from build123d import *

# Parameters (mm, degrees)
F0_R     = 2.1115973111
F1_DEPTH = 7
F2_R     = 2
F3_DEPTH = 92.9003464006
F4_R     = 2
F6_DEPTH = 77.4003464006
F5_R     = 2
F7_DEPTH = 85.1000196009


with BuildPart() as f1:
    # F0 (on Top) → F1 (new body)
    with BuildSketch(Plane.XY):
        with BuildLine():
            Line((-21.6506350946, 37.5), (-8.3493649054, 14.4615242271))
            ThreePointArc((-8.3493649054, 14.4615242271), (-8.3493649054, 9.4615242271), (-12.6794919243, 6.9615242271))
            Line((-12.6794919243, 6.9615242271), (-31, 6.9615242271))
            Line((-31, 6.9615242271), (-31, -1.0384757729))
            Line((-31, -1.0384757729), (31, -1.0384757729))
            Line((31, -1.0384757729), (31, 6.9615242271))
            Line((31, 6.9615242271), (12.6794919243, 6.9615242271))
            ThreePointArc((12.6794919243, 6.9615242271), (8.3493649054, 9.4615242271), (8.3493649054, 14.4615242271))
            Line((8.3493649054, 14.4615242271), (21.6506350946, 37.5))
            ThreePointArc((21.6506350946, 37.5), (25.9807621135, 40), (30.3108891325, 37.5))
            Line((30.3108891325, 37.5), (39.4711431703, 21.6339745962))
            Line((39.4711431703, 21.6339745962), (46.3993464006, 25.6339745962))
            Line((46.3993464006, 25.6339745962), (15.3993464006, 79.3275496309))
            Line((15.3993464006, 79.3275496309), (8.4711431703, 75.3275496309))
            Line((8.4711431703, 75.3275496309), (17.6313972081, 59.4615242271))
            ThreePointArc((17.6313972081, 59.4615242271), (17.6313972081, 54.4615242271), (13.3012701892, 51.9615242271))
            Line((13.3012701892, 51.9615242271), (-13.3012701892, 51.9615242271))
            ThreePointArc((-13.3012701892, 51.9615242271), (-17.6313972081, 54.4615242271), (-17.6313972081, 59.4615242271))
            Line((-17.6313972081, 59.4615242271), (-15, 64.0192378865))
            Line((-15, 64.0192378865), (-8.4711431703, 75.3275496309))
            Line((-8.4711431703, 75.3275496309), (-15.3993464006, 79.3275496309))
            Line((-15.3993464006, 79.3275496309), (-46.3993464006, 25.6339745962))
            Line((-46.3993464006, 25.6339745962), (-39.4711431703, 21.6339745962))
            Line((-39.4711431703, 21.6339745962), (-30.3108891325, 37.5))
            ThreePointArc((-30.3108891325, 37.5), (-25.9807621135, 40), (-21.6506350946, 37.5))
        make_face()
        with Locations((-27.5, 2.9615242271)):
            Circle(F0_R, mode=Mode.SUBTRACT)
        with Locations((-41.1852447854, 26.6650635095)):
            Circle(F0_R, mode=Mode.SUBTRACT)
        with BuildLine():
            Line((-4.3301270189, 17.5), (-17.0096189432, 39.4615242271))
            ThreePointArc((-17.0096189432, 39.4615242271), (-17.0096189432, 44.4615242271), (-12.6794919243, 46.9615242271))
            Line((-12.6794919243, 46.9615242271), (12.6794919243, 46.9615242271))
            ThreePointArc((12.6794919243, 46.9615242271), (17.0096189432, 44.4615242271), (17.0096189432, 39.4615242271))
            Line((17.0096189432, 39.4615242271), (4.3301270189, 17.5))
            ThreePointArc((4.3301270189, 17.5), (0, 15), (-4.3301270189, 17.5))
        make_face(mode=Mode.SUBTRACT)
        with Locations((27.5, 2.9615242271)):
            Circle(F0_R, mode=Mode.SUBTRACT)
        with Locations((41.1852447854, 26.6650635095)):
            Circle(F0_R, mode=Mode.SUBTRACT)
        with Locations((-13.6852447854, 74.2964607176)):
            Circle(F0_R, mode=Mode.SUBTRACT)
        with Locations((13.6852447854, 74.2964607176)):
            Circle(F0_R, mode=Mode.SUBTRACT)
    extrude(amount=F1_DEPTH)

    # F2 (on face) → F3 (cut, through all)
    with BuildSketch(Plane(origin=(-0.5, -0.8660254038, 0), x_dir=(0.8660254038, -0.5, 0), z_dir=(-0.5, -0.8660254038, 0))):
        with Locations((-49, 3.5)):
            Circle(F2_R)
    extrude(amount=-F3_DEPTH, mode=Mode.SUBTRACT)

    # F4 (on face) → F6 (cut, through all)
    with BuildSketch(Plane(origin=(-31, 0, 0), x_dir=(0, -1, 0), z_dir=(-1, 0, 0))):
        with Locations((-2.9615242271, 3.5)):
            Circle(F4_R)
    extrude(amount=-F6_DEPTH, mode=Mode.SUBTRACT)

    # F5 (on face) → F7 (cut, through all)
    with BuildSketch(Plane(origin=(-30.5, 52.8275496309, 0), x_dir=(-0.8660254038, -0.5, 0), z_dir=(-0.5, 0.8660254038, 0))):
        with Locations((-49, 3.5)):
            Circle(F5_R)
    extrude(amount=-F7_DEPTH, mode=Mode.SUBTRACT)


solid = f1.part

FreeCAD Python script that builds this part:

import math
import FreeCAD as App
import Part
import Sketcher
from FreeCAD import Vector
Q = App.Units.Quantity

doc = App.newDocument("Part")
body = doc.addObject("PartDesign::Body", "Body")

sketch1 = body.newObject("Sketcher::SketchObject", "Sketch")
sketch1.AttachmentSupport = (doc.getObject("XY_Plane"), [""])
sketch1.MapMode = "FlatFace"
sketch1.addGeometry([
    Part.LineSegment(Vector(-21.7, 37.5, 0), Vector(-8.3, 14.5, 0)),
    Part.ArcOfCircle(Part.Circle(Vector(-12.7, 12, 0), Vector(0, 0, 1), 5), math.radians(-90), math.radians(30)),
    Part.LineSegment(Vector(-12.7, 7, 0), Vector(-31, 7, 0)),
    Part.LineSegment(Vector(-31, 7, 0), Vector(-31, -1, 0)),
    Part.LineSegment(Vector(-31, -1, 0), Vector(31, -1, 0)),
    Part.LineSegment(Vector(31, -1, 0), Vector(31, 7, 0)),
    Part.LineSegment(Vector(31, 7, 0), Vector(12.7, 7, 0)),
    Part.ArcOfCircle(Part.Circle(Vector(12.7, 12, 0), Vector(0, 0, 1), 5), math.radians(150), math.radians(270)),
    Part.LineSegment(Vector(8.3, 14.5, 0), Vector(21.7, 37.5, 0)),
    Part.ArcOfCircle(Part.Circle(Vector(26, 35, 0), Vector(0, 0, 1), 5), math.radians(30), math.radians(150)),
    Part.LineSegment(Vector(30.3, 37.5, 0), Vector(39.5, 21.6, 0)),
    Part.LineSegment(Vector(39.5, 21.6, 0), Vector(46.4, 25.6, 0)),
    Part.LineSegment(Vector(46.4, 25.6, 0), Vector(15.4, 79.3, 0)),
    Part.LineSegment(Vector(15.4, 79.3, 0), Vector(8.5, 75.3, 0)),
    Part.LineSegment(Vector(8.5, 75.3, 0), Vector(17.6, 59.5, 0)),
    Part.ArcOfCircle(Part.Circle(Vector(13.3, 57, 0), Vector(0, 0, 1), 5), math.radians(-90), math.radians(30)),
    Part.LineSegment(Vector(13.3, 52, 0), Vector(-13.3, 52, 0)),
    Part.ArcOfCircle(Part.Circle(Vector(-13.3, 57, 0), Vector(0, 0, 1), 5), math.radians(150), math.radians(270)),
    Part.LineSegment(Vector(-17.6, 59.5, 0), Vector(-15, 64, 0)),
    Part.LineSegment(Vector(-15, 64, 0), Vector(-8.5, 75.3, 0)),
    Part.LineSegment(Vector(-8.5, 75.3, 0), Vector(-15.4, 79.3, 0)),
    Part.LineSegment(Vector(-15.4, 79.3, 0), Vector(-46.4, 25.6, 0)),
    Part.LineSegment(Vector(-46.4, 25.6, 0), Vector(-39.5, 21.6, 0)),
    Part.LineSegment(Vector(-39.5, 21.6, 0), Vector(-30.3, 37.5, 0)),
    Part.ArcOfCircle(Part.Circle(Vector(-26, 35, 0), Vector(0, 0, 1), 5), math.radians(30), math.radians(150)),
    Part.Circle(Vector(-27.5, 3, 0), Vector(0, 0, 1), 2.1),
    Part.Circle(Vector(-41.2, 26.7, 0), Vector(0, 0, 1), 2.1),
    Part.Circle(Vector(27.5, 3, 0), Vector(0, 0, 1), 2.1),
    Part.ArcOfCircle(Part.Circle(Vector(0, 20, 0), Vector(0, 0, 1), 5), math.radians(-150), math.radians(-30)),
    Part.LineSegment(Vector(-4.3, 17.5, 0), Vector(-17, 39.5, 0)),
    Part.ArcOfCircle(Part.Circle(Vector(-12.7, 42, 0), Vector(0, 0, 1), 5), math.radians(90), math.radians(210)),
    Part.LineSegment(Vector(-12.7, 47, 0), Vector(12.7, 47, 0)),
    Part.ArcOfCircle(Part.Circle(Vector(12.7, 42, 0), Vector(0, 0, 1), 5), math.radians(-30), math.radians(90)),
    Part.LineSegment(Vector(17, 39.5, 0), Vector(4.3, 17.5, 0)),
    Part.Circle(Vector(41.2, 26.7, 0), Vector(0, 0, 1), 2.1),
    Part.Circle(Vector(-13.7, 74.3, 0), Vector(0, 0, 1), 2.1),
    Part.Circle(Vector(13.7, 74.3, 0), Vector(0, 0, 1), 2.1),
], False)
sketch1.addConstraint([
    Sketcher.Constraint("Tangent", 0, 2, 1, 2),
    Sketcher.Constraint("Tangent", 1, 1, 2, 1),
    Sketcher.Constraint("Coincident", 2, 2, 3, 1),
    Sketcher.Constraint("Coincident", 3, 2, 4, 1),
    Sketcher.Constraint("Coincident", 4, 2, 5, 1),
    Sketcher.Constraint("Coincident", 5, 2, 6, 1),
    Sketcher.Constraint("Tangent", 6, 2, 7, 2),
    Sketcher.Constraint("Tangent", 7, 1, 8, 1),
    Sketcher.Constraint("Tangent", 8, 2, 9, 2),
    Sketcher.Constraint("Tangent", 9, 1, 10, 1),
    Sketcher.Constraint("Coincident", 10, 2, 11, 1),
    Sketcher.Constraint("Coincident", 11, 2, 12, 1),
    Sketcher.Constraint("Coincident", 12, 2, 13, 1),
    Sketcher.Constraint("Coincident", 13, 2, 14, 1),
    Sketcher.Constraint("Tangent", 14, 2, 15, 2),
    Sketcher.Constraint("Tangent", 15, 1, 16, 1),
    Sketcher.Constraint("Tangent", 16, 2, 17, 2),
    Sketcher.Constraint("Tangent", 17, 1, 18, 1),
    Sketcher.Constraint("Coincident", 18, 2, 19, 1),
    Sketcher.Constraint("Coincident", 19, 2, 20, 1),
    Sketcher.Constraint("Coincident", 20, 2, 21, 1),
    Sketcher.Constraint("Coincident", 21, 2, 22, 1),
    Sketcher.Constraint("Coincident", 22, 2, 23, 1),
    Sketcher.Constraint("Tangent", 23, 2, 24, 2),
    Sketcher.Constraint("Tangent", 24, 1, 0, 1),
    Sketcher.Constraint("Tangent", 28, 1, 29, 1),
    Sketcher.Constraint("Tangent", 29, 2, 30, 2),
    Sketcher.Constraint("Tangent", 30, 1, 31, 1),
    Sketcher.Constraint("Tangent", 31, 2, 32, 2),
    Sketcher.Constraint("Tangent", 32, 1, 33, 1),
    Sketcher.Constraint("Tangent", 33, 2, 28, 2),
    Sketcher.Constraint("Horizontal", 2),
    Sketcher.Constraint("Vertical", 3),
    Sketcher.Constraint("Horizontal", 4),
    Sketcher.Constraint("Vertical", 5),
    Sketcher.Constraint("Horizontal", 6),
    Sketcher.Constraint("Horizontal", 16),
    Sketcher.Constraint("Horizontal", 31),
    Sketcher.Constraint("Equal", 1, 7),
    Sketcher.Constraint("Equal", 7, 9),
    Sketcher.Constraint("Equal", 9, 15),
    Sketcher.Constraint("Equal", 15, 17),
    Sketcher.Constraint("Equal", 17, 24),
    Sketcher.Constraint("Equal", 25, 26),
    Sketcher.Constraint("Equal", 26, 27),
    Sketcher.Constraint("Equal", 24, 28),
    Sketcher.Constraint("Equal", 28, 30),
    Sketcher.Constraint("Equal", 30, 32),
    Sketcher.Constraint("Equal", 27, 34),
    Sketcher.Constraint("Equal", 34, 35),
    Sketcher.Constraint("Equal", 35, 36),
    Sketcher.Constraint("Symmetric", 1, 3, 7, 3, -2),
    Sketcher.Constraint("Symmetric", 9, 3, 24, 3, -2),
    Sketcher.Constraint("Symmetric", 25, 3, 27, 3, -2),
    Sketcher.Constraint("Symmetric", 26, 3, 34, 3, -2),
    Sketcher.Constraint("Symmetric", 35, 3, 36, 3, -2),
    Sketcher.Constraint("Symmetric", 14, 2, 17, 1, -2),
    Sketcher.Constraint("Symmetric", 13, 2, 19, 2, -2),
    Sketcher.Constraint("Symmetric", 12, 2, 20, 2, -2),
    Sketcher.Constraint("Symmetric", 11, 2, 21, 2, -2),
    Sketcher.Constraint("Symmetric", 10, 2, 22, 2, -2),
    Sketcher.Constraint("Symmetric", 29, 2, 32, 1, -2),
    Sketcher.Constraint("Parallel", 0, 10),
    Sketcher.Constraint("Perpendicular", 10, 11),
    Sketcher.Constraint("Perpendicular", 11, 12),
    Sketcher.Constraint("Perpendicular", 12, 13),
    Sketcher.Constraint("Perpendicular", 13, 14),
    Sketcher.Constraint("Parallel", 14, 29),
    Sketcher.Constraint("Vertical", 1, 3, 30, 3),
    Sketcher.Constraint("Equal", 2, 6),
    Sketcher.Constraint("Equal", 11, 13),
    Sketcher.Constraint("Equal", 10, 14),
    Sketcher.Constraint("Radius", 1, 5.0),
    Sketcher.Constraint("DistanceX", 4, 1, 4, 2, 62.0),
    Sketcher.Constraint("DistanceY", 3, 2, 3, 1, 8.0),
    Sketcher.Constraint("Angle", 0, Q("-60 deg")),
    Sketcher.Constraint("Distance", 11, 8.0),
    Sketcher.Constraint("Distance", 12, 62.0),
    Sketcher.Constraint("DistanceY", -1, 1, 9, 3, 35.0),
    Sketcher.Constraint("DistanceY", -1, 1, 28, 3, 20.0),
    Sketcher.Constraint("DistanceX", 18, 2, -1, 1, 15.0),
    Sketcher.Constraint("DistanceY", 7, 3, 15, 3, 45.0),
    Sketcher.Constraint("DistanceY", 25, 3, 1, 3, 9.0),
    Sketcher.Constraint("DistanceX", 25, 3, 27, 3, 55.0),
    Sketcher.Constraint("DistanceY", 30, 3, 17, 3, 15.0),
    Sketcher.Constraint("Diameter", 25, 4.223195),
    Sketcher.Constraint("DistanceX", 2, 2, 2, 1, 18.320508),
    Sketcher.Constraint("DistanceX", 10, 2, 34, 3, 1.714102),
    Sketcher.Constraint("DistanceX", 36, 3, 12, 2, 1.714102),
    Sketcher.Constraint("DistanceY", -1, 1, 35, 3, 74.296461),
    Sketcher.Constraint("DistanceY", 25, 3, 26, 3, 23.703539),
])
pad1 = body.newObject("PartDesign::Pad", "Pad")
pad1.Profile = sketch1
pad1.Length = 7

sketch2 = body.newObject("Sketcher::SketchObject", "Sketch001")
sketch2.Placement = App.Placement(Vector(-0.5, -0.866025, 0), App.Rotation(Vector(0.866025404, -0.5, 0), Vector(0, 0, 1), Vector(-0.5, -0.866025404, 0), "ZXY"))
sketch2.addGeometry(Part.Circle(Vector(-49, 3.5, 0), Vector(0, 0, 1), 2), False)
sketch2.addConstraint([
    Sketcher.Constraint("Diameter", 0, 4.0),
    Sketcher.Constraint("DistanceX", 0, 3, -1, 1, 49.0),
    Sketcher.Constraint("DistanceY", -1, 1, 0, 3, 3.5),
])
pocket1 = body.newObject("PartDesign::Pocket", "Pocket")
pocket1.Profile = sketch2
pocket1.Type = "ThroughAll"

sketch3 = body.newObject("Sketcher::SketchObject", "Sketch002")
sketch3.AttachmentSupport = (doc.getObject("YZ_Plane"), [""])
sketch3.MapMode = "FlatFace"
sketch3.AttachmentOffset = App.Placement(Vector(0, 0, -31), App.Rotation())
sketch3.addGeometry(Part.Circle(Vector(3, 3.5, 0), Vector(0, 0, 1), 2), False)
sketch3.addConstraint([
    Sketcher.Constraint("Diameter", 0, 4.0),
    Sketcher.Constraint("DistanceY", -1, 1, 0, 3, 3.5),
    Sketcher.Constraint("DistanceX", -1, 1, 0, 3, 2.961524),
])
pocket2 = body.newObject("PartDesign::Pocket", "Pocket001")
pocket2.Profile = sketch3
pocket2.Type = "ThroughAll"
pocket2.Reversed = True

sketch4 = body.newObject("Sketcher::SketchObject", "Sketch003")
sketch4.Placement = App.Placement(Vector(-30.5, 52.82755, 0), App.Rotation(Vector(-0.866025404, -0.5, 0), Vector(0, 0, 1), Vector(-0.5, 0.866025404, 0), "ZXY"))
sketch4.addGeometry(Part.Circle(Vector(-49, 3.5, 0), Vector(0, 0, 1), 2), False)
sketch4.addConstraint([
    Sketcher.Constraint("Diameter", 0, 4.0),
    Sketcher.Constraint("DistanceX", 0, 3, -1, 1, 49.0),
    Sketcher.Constraint("DistanceY", -1, 1, 0, 3, 3.5),
])
pocket3 = body.newObject("PartDesign::Pocket", "Pocket002")
pocket3.Profile = sketch4
pocket3.Type = "ThroughAll"

doc.recompute()
